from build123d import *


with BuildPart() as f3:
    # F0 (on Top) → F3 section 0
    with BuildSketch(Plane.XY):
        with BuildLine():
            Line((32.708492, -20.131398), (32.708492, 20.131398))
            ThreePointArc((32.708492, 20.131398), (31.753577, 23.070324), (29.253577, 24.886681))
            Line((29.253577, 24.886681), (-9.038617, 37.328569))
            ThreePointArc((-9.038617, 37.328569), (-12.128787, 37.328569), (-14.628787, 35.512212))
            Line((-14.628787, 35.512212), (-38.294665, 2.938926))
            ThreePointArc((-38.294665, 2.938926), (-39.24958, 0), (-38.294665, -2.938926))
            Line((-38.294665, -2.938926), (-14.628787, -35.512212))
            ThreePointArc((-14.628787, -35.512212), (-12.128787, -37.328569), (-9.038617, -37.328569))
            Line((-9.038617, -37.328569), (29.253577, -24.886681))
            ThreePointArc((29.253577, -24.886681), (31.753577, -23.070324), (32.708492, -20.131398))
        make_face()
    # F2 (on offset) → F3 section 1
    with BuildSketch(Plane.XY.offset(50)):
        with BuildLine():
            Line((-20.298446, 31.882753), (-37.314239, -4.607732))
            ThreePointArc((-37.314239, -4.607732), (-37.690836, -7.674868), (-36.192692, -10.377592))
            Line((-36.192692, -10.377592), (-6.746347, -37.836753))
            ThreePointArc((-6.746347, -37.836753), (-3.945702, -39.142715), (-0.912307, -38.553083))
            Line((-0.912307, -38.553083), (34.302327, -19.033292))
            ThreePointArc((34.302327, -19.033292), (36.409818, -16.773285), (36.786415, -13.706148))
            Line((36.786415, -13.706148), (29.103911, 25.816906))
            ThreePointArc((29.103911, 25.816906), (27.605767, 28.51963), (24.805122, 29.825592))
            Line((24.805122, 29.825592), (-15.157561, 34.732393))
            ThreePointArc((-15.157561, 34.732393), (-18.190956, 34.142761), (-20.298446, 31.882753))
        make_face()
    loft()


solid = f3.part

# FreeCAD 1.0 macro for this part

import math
import FreeCAD as App
import Part
import Sketcher
from FreeCAD import Vector
Q = App.Units.Quantity

doc = App.newDocument("Part")
body = doc.addObject("PartDesign::Body", "Body")

# Sketch on XY plane
sketch1 = body.newObject("Sketcher::SketchObject", "Sketch")
sketch1.AttachmentSupport = (doc.getObject("XY_Plane"), [""])
sketch1.MapMode = "FlatFace"
sketch1.addGeometry([
    Part.LineSegment(Vector(32.7, -20.1, 0), Vector(32.7, 20.1, 0)),  # 0
    Part.ArcOfCircle(Part.Circle(Vector(27.7, 20.1, 0), Vector(0, 0, 1), 5), math.radians(0), math.radians(72)),  # 1
    Part.LineSegment(Vector(29.3, 24.9, 0), Vector(-9, 37.3, 0)),  # 2
    Part.ArcOfCircle(Part.Circle(Vector(-10.6, 32.6, 0), Vector(0, 0, 1), 5), math.radians(72), math.radians(144)),  # 3
    Part.LineSegment(Vector(-14.6, 35.5, 0), Vector(-38.3, 2.9, 0)),  # 4
    Part.ArcOfCircle(Part.Circle(Vector(-34.2, 0, 0), Vector(0, 0, 1), 5), math.radians(144), math.radians(216)),  # 5
    Part.LineSegment(Vector(-38.3, -2.9, 0), Vector(-14.6, -35.5, 0)),  # 6
    Part.ArcOfCircle(Part.Circle(Vector(-10.6, -32.6, 0), Vector(0, 0, 1), 5), math.radians(-144), math.radians(-72)),  # 7
    Part.LineSegment(Vector(-9, -37.3, 0), Vector(29.3, -24.9, 0)),  # 8
    Part.ArcOfCircle(Part.Circle(Vector(27.7, -20.1, 0), Vector(0, 0, 1), 5), math.radians(-72), math.radians(0)),  # 9
], False)
sketch1.addConstraint([
    Sketcher.Constraint("Tangent", 0, 2, 1, 1),
    Sketcher.Constraint("Tangent", 1, 2, 2, 1),
    Sketcher.Constraint("Tangent", 2, 2, 3, 1),
    Sketcher.Constraint("Tangent", 3, 2, 4, 1),
    Sketcher.Constraint("Tangent", 4, 2, 5, 1),
    Sketcher.Constraint("Tangent", 5, 2, 6, 1),
    Sketcher.Constraint("Tangent", 6, 2, 7, 1),
    Sketcher.Constraint("Tangent", 7, 2, 8, 1),
    Sketcher.Constraint("Tangent", 8, 2, 9, 1),
    Sketcher.Constraint("Tangent", 9, 2, 0, 1),
    Sketcher.Constraint("Vertical", 0),
    Sketcher.Constraint("Equal", 3, 5),
    Sketcher.Constraint("Equal", 5, 7),
    Sketcher.Constraint("Equal", 1, 9),
    Sketcher.Constraint("Symmetric", 3, 3, 7, 3, -1),
    Sketcher.Constraint("PointOnObject", 5, 3, -1),
    Sketcher.Constraint("Vertical", 2, 2, 7, 2),
    Sketcher.Constraint("Equal", 2, 4),
    Sketcher.Constraint("Radius", 1, 5.000002),
    Sketcher.Constraint("Radius", 3, 4.999999),
    Sketcher.Constraint("Angle", 2, Q("162 deg")),
    Sketcher.Constraint("Angle", 4, Q("-126.000001 deg")),
    Sketcher.Constraint("DistanceY", -1, 1, 0, 2, 20.131398),
    Sketcher.Constraint("DistanceX", -1, 1, 1, 3, 27.70849),
])

# Sketch on XY plane
sketch2 = body.newObject("Sketcher::SketchObject", "Sketch001")
sketch2.AttachmentSupport = (doc.getObject("XY_Plane"), [""])
sketch2.MapMode = "FlatFace"
sketch2.AttachmentOffset = App.Placement(Vector(0, 0, 50), App.Rotation())
sketch2.addGeometry([
    Part.LineSegment(Vector(-20.3, 31.9, 0), Vector(-37.3, -4.6, 0)),  # 0
    Part.ArcOfCircle(Part.Circle(Vector(-32.8, -6.7, 0), Vector(0, 0, 1), 5), math.radians(155), math.radians(227)),  # 1
    Part.LineSegment(Vector(-36.2, -10.4, 0), Vector(-6.7, -37.8, 0)),  # 2
    Part.ArcOfCircle(Part.Circle(Vector(-3.3, -34.2, 0), Vector(0, 0, 1), 5), math.radians(-133), math.radians(-61)),  # 3
    Part.LineSegment(Vector(-0.9, -38.6, 0), Vector(34.3, -19, 0)),  # 4
    Part.ArcOfCircle(Part.Circle(Vector(31.9, -14.7, 0), Vector(0, 0, 1), 5), math.radians(-61), math.radians(11)),  # 5
    Part.LineSegment(Vector(36.8, -13.7, 0), Vector(29.1, 25.8, 0)),  # 6
    Part.ArcOfCircle(Part.Circle(Vector(24.2, 24.9, 0), Vector(0, 0, 1), 5), math.radians(11), math.radians(83)),  # 7
    Part.LineSegment(Vector(24.8, 29.8, 0), Vector(-15.2, 34.7, 0)),  # 8
    Part.ArcOfCircle(Part.Circle(Vector(-15.8, 29.8, 0), Vector(0, 0, 1), 5), math.radians(83), math.radians(155)),  # 9
], False)
sketch2.addConstraint([
    Sketcher.Constraint("Tangent", 0, 2, 1, 1),
    Sketcher.Constraint("Tangent", 1, 2, 2, 1),
    Sketcher.Constraint("Tangent", 2, 2, 3, 1),
    Sketcher.Constraint("Tangent", 3, 2, 4, 1),
    Sketcher.Constraint("Tangent", 4, 2, 5, 1),
    Sketcher.Constraint("Tangent", 5, 2, 6, 1),
    Sketcher.Constraint("Tangent", 6, 2, 7, 1),
    Sketcher.Constraint("Tangent", 7, 2, 8, 1),
    Sketcher.Constraint("Tangent", 8, 2, 9, 1),
    Sketcher.Constraint("Tangent", 9, 2, 0, 1),
    Sketcher.Constraint("Equal", 1, 3),
    Sketcher.Constraint("Equal", 3, 5),
    Sketcher.Constraint("Equal", 5, 7),
    Sketcher.Constraint("Equal", 0, 2),
    Sketcher.Constraint("Equal", 2, 4),
    Sketcher.Constraint("Equal", 4, 6),
    Sketcher.Constraint("Equal", 6, 8),
    Sketcher.Constraint("Radius", 1, 5.000001),
    Sketcher.Constraint("Angle", 0, Q("-115.000001 deg")),
    Sketcher.Constraint("Angle", 2, Q("-43 deg")),
    Sketcher.Constraint("Angle", 4, Q("29.000001 deg")),
    Sketcher.Constraint("Angle", 6, Q("101.000001 deg")),
    Sketcher.Constraint("DistanceX", 1, 3, -1, 1, 32.782699),
    Sketcher.Constraint("DistanceY", 5, 3, 1, 2, 4.282601),
    Sketcher.Constraint("DistanceY", 4, 2, -1, 1, 19.033292),
])

additiveloft = body.newObject("PartDesign::AdditiveLoft", "AdditiveLoft")
additiveloft.Profile = sketch1
additiveloft.Sections = [sketch2]

doc.recompute()
